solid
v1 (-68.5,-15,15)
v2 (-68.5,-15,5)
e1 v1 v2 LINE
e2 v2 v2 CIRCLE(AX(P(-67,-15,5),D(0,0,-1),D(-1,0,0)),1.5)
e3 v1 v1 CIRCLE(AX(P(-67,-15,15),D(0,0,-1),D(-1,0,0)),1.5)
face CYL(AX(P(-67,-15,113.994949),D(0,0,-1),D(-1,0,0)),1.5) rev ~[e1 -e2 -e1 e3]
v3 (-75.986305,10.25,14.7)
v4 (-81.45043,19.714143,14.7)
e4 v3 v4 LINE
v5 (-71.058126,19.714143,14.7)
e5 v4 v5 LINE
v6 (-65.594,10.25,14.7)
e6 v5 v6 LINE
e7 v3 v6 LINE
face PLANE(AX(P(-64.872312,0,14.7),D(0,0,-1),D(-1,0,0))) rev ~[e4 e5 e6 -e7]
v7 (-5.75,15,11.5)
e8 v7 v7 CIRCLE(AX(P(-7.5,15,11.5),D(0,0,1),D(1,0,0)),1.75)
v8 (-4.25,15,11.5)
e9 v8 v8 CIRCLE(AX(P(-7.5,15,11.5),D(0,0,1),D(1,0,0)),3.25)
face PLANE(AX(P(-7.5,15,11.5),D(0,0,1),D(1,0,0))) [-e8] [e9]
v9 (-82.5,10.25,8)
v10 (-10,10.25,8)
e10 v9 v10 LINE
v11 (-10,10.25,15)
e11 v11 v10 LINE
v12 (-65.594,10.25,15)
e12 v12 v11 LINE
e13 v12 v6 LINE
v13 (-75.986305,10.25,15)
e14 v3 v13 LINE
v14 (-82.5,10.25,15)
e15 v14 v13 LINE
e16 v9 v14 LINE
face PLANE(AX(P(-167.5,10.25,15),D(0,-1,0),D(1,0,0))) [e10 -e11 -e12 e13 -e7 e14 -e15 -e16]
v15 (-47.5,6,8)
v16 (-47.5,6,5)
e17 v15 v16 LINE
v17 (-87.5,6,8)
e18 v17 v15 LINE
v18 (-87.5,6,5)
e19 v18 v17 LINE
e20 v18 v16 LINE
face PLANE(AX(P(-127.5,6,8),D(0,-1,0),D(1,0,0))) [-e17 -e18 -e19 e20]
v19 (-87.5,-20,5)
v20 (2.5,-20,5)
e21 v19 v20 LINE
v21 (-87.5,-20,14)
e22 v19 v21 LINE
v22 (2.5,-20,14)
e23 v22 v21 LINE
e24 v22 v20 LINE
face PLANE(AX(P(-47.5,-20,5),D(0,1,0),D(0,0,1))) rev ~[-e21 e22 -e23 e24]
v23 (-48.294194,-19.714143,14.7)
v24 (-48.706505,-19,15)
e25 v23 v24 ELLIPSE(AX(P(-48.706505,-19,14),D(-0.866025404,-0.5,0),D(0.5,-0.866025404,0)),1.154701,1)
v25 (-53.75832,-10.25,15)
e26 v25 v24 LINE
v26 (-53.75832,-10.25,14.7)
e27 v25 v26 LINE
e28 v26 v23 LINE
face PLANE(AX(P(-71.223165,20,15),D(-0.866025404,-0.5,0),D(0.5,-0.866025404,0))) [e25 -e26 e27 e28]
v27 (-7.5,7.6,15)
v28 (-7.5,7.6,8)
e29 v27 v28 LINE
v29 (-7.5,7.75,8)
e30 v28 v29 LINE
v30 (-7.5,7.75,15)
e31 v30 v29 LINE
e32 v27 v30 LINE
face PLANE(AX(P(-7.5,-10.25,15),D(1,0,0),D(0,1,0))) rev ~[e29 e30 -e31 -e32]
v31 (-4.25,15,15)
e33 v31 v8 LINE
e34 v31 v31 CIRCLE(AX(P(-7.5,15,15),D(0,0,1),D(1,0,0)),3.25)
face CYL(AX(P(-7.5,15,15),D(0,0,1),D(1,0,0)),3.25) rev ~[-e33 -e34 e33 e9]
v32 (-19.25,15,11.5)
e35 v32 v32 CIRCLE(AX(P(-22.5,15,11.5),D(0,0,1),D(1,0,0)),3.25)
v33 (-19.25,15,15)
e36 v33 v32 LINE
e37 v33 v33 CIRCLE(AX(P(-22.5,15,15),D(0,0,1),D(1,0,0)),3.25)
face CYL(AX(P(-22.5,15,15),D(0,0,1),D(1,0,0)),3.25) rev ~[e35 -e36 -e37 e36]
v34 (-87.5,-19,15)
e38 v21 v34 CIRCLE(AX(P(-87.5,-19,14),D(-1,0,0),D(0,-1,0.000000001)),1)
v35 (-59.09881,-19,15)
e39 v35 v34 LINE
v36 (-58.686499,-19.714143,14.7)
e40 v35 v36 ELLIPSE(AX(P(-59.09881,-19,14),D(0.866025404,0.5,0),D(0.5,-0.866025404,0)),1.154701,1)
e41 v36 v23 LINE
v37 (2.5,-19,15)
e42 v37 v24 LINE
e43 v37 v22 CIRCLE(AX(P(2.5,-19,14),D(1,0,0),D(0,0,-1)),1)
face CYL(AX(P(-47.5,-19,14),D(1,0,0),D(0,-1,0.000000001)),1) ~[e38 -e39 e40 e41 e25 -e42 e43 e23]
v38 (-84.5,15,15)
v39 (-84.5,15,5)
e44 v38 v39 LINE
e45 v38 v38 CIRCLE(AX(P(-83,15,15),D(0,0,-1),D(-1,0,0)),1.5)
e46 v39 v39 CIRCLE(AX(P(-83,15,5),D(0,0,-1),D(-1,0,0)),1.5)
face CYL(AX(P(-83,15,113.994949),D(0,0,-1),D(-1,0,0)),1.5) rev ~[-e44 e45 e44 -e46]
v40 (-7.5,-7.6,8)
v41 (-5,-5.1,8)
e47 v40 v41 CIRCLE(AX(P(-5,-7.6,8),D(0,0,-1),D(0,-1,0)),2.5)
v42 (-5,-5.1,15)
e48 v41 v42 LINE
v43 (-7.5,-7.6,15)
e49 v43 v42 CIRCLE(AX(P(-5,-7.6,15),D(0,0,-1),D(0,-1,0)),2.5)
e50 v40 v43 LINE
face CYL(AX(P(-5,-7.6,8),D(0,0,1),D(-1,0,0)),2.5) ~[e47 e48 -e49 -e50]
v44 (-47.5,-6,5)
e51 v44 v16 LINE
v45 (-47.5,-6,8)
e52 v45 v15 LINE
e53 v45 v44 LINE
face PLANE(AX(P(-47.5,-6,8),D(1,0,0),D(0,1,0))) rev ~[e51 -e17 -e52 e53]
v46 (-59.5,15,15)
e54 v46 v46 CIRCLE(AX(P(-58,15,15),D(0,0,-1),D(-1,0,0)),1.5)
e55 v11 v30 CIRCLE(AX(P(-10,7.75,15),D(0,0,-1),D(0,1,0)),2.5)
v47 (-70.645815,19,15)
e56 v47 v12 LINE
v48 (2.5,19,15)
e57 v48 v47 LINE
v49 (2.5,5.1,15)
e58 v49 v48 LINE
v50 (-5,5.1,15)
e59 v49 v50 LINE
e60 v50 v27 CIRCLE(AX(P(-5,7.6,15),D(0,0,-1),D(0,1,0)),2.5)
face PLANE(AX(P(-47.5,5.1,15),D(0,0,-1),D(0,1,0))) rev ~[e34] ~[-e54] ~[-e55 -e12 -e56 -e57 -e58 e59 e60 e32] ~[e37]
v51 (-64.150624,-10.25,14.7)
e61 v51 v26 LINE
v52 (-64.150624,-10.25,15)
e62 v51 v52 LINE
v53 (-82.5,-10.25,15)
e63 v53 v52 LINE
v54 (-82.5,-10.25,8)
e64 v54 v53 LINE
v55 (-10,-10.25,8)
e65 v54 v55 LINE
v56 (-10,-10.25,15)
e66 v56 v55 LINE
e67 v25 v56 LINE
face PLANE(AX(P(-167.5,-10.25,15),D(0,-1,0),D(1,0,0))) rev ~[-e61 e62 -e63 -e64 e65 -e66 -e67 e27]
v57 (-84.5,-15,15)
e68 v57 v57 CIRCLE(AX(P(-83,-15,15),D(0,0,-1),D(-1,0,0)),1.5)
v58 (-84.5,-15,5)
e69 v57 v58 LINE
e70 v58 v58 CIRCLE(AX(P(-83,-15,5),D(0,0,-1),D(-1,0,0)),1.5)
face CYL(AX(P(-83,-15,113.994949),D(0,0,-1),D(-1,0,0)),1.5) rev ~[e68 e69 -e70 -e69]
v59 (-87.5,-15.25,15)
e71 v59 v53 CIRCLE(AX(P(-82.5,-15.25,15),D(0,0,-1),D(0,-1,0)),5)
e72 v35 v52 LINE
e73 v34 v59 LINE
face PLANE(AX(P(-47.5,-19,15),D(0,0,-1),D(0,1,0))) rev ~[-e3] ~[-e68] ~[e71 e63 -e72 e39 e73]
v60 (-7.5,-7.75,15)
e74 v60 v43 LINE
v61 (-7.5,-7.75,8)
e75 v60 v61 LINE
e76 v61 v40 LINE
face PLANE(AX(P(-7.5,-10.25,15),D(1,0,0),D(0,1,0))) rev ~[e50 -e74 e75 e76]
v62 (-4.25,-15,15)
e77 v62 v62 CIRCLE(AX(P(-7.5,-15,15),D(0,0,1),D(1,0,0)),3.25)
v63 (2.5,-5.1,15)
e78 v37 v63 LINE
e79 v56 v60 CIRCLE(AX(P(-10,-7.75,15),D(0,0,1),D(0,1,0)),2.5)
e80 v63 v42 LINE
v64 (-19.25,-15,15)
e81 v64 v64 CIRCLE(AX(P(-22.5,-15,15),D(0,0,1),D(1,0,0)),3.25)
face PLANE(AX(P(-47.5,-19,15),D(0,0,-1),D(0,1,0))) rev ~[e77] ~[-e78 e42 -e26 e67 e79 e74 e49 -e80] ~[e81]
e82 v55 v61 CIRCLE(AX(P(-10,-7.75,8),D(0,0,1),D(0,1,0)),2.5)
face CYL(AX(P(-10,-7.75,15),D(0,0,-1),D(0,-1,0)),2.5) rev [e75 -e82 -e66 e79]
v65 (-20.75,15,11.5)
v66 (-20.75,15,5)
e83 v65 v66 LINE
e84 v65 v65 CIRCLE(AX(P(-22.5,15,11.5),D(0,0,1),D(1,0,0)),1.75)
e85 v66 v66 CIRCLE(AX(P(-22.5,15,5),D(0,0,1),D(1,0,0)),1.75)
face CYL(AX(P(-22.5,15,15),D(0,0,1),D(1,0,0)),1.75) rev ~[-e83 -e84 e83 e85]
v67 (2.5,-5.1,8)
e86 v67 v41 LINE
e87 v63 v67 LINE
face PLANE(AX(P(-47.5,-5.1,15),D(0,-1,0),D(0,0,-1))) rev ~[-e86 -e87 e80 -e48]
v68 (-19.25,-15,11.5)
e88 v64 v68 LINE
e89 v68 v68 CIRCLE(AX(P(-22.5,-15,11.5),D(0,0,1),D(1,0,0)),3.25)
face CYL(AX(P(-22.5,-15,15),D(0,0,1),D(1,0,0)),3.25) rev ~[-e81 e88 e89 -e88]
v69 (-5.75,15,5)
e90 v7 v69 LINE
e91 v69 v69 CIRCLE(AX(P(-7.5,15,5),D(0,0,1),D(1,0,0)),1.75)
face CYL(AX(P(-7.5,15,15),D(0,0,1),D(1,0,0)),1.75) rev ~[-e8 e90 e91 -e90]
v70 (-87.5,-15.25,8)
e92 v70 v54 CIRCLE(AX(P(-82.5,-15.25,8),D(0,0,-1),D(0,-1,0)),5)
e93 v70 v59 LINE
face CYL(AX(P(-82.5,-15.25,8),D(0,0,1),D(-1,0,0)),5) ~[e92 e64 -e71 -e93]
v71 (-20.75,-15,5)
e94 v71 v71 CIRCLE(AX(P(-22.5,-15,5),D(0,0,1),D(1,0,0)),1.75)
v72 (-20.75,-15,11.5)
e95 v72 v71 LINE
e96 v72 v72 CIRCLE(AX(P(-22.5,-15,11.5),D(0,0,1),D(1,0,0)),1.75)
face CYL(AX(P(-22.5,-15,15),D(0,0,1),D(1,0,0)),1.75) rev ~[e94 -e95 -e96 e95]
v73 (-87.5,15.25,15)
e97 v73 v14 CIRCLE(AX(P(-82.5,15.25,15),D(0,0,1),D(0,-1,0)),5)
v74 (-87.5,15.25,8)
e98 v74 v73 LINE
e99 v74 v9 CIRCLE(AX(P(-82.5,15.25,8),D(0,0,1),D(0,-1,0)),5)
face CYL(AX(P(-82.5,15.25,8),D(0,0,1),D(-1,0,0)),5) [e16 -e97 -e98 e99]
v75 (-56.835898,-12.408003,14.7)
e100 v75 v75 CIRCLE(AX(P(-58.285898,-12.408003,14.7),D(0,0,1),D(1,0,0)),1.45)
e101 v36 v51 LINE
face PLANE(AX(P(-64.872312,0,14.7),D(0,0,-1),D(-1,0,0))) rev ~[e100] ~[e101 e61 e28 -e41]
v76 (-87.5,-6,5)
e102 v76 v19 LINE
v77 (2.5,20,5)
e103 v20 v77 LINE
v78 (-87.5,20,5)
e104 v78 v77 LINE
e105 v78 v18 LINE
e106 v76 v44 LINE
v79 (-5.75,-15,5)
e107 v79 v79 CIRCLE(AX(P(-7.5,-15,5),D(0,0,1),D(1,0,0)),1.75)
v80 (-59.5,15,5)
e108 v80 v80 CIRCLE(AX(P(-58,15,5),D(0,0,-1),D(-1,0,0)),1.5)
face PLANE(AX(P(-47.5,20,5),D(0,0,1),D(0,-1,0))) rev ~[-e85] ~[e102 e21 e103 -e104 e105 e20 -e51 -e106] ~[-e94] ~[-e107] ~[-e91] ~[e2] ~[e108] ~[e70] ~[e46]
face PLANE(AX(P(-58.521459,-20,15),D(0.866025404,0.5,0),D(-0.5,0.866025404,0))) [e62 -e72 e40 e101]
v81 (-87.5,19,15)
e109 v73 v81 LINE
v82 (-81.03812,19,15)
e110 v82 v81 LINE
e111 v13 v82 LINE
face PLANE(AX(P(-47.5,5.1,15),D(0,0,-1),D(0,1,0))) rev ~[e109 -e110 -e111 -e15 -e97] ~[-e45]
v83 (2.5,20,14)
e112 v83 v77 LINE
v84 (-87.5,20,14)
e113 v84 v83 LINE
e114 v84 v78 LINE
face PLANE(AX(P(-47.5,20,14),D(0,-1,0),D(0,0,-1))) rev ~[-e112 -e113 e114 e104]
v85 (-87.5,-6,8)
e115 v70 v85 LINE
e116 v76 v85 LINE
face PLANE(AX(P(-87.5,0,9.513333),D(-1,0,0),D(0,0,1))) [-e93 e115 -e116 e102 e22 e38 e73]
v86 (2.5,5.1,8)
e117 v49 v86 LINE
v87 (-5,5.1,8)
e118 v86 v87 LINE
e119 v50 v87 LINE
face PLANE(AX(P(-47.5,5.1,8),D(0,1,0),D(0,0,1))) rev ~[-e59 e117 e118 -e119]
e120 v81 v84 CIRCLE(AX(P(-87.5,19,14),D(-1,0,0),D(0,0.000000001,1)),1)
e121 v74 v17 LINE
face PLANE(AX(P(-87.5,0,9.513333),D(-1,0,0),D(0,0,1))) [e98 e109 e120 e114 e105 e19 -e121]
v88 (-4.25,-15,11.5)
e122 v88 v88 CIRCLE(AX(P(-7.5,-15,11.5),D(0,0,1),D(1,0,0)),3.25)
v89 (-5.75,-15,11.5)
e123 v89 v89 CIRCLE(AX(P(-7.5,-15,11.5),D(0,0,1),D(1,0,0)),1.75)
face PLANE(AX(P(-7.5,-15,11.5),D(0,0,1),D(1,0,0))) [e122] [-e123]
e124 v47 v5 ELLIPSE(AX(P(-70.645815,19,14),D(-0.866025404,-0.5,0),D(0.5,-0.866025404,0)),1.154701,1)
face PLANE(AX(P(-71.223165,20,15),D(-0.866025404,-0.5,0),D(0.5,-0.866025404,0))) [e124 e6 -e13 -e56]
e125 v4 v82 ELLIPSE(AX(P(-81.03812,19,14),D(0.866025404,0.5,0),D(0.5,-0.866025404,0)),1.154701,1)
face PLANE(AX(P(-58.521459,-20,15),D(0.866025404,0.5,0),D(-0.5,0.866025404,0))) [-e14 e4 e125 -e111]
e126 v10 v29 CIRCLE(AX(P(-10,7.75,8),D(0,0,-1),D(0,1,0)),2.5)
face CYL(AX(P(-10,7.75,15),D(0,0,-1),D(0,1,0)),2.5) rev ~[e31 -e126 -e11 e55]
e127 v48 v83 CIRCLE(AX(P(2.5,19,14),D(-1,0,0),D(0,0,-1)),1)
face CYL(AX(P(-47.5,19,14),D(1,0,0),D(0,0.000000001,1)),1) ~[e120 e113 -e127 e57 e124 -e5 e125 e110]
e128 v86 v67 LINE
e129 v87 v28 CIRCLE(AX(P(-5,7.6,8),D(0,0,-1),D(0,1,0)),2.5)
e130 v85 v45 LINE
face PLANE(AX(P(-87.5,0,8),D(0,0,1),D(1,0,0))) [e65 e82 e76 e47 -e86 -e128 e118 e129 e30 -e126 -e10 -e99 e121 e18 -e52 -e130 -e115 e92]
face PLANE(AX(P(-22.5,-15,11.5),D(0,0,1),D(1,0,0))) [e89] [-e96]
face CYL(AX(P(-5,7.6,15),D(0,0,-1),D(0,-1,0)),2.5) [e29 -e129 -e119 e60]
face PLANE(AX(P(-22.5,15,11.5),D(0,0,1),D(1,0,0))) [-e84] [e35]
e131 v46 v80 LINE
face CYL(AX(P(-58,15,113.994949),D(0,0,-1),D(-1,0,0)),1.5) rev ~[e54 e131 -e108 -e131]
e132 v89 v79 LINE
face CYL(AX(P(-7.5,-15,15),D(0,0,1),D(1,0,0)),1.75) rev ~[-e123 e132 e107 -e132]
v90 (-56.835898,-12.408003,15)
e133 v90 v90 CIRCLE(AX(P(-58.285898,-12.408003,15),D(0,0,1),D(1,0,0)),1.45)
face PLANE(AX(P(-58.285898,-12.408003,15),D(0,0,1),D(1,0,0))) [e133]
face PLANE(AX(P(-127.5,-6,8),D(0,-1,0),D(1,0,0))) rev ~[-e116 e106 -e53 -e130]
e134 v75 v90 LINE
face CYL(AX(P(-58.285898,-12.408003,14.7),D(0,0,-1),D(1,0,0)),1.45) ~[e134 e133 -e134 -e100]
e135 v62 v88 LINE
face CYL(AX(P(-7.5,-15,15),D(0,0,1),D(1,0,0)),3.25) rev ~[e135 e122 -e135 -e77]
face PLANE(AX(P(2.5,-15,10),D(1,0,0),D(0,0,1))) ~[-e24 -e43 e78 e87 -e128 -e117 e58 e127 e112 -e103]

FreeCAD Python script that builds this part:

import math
import FreeCAD as App
import Part
import Sketcher
from FreeCAD import Vector
Q = App.Units.Quantity


def edges_at(feature, points):
    """Names of the edges that pass closest to the given points."""
    edges = feature.Shape.Edges
    near = lambda p: min(range(len(edges)), key=lambda i: edges[i].distToShape(Part.Vertex(*p))[0])
    return sorted({f"Edge{near(p) + 1}" for p in points})

doc = App.newDocument("Part")
body = doc.addObject("PartDesign::Body", "Body")
body.AllowCompound = True

# Sketch on XY plane
sketch1 = body.newObject("Sketcher::SketchObject", "Sketch")
sketch1.AttachmentSupport = (doc.getObject("XY_Plane"), [""])
sketch1.MapMode = "FlatFace"
sketch1.addGeometry([
    Part.LineSegment(Vector(-128, 40, 0), Vector(-128, -40, 0)),
    Part.LineSegment(Vector(-128, -40, 0), Vector(128, -40, 0)),
    Part.LineSegment(Vector(128, -40, 0), Vector(128, 40, 0)),
    Part.LineSegment(Vector(128, 40, 0), Vector(-128, 40, 0)),
], False)
sketch1.addConstraint([
    Sketcher.Constraint("Coincident", 0, 2, 1, 1),
    Sketcher.Constraint("Coincident", 1, 2, 2, 1),
    Sketcher.Constraint("Coincident", 2, 2, 3, 1),
    Sketcher.Constraint("Coincident", 3, 2, 0, 1),
    Sketcher.Constraint("Vertical", 0),
    Sketcher.Constraint("Horizontal", 1),
    Sketcher.Constraint("Vertical", 2),
    Sketcher.Constraint("Horizontal", 3),
    Sketcher.Constraint("Symmetric", 0, 2, 2, 2, -1, 1),
    Sketcher.Constraint("DistanceX", 1, 1, 1, 2, 255.0),
    Sketcher.Constraint("DistanceY", 0, 2, 0, 1, 80.0),
])
pad1 = body.newObject("PartDesign::Pad", "Pad")
pad1.Profile = sketch1
pad1.Length = 5

# Sketch on XY plane
sketch2 = body.newObject("Sketcher::SketchObject", "Sketch001")
sketch2.AttachmentSupport = (doc.getObject("XY_Plane"), [""])
sketch2.MapMode = "FlatFace"
sketch2.AttachmentOffset = App.Placement(Vector(0, 0, 5), App.Rotation())
sketch2.addGeometry(Part.Circle(Vector(-108, 0, 0), Vector(0, 0, 1), 5), False)
sketch2.addConstraint([
    Sketcher.Constraint("PointOnObject", 0, 3, -1),
    Sketcher.Constraint("Diameter", 0, 10.0),
    Sketcher.Constraint("DistanceX", 0, 3, -1, 1, 107.5),
])
pocket1 = body.newObject("PartDesign::Pocket", "Pocket")
pocket1.Profile = sketch2
pocket1.Length = 5

# Sketch on XY plane
sketch3 = body.newObject("Sketcher::SketchObject", "Sketch002")
sketch3.AttachmentSupport = (doc.getObject("XY_Plane"), [""])
sketch3.MapMode = "FlatFace"
sketch3.AttachmentOffset = App.Placement(Vector(0, 0, 5), App.Rotation())
sketch3.addGeometry(Part.Circle(Vector(-45, 0, 0), Vector(0, 0, 1), 4), False)
sketch3.addConstraint([
    Sketcher.Constraint("PointOnObject", 0, 3, -1),
    Sketcher.Constraint("Diameter", 0, 8.0),
    Sketcher.Constraint("DistanceX", 0, 3, -1, 1, 45.0),
])
pocket2 = body.newObject("PartDesign::Pocket", "Pocket001")
pocket2.Profile = sketch3
pocket2.Length = 10

# Sketch on XY plane
sketch4 = body.newObject("Sketcher::SketchObject", "Sketch003")
sketch4.AttachmentSupport = (doc.getObject("XY_Plane"), [""])
sketch4.MapMode = "FlatFace"
sketch4.AttachmentOffset = App.Placement(Vector(0, 0, 5), App.Rotation())
sketch4.addGeometry([
    Part.LineSegment(Vector(-48, 10, 0), Vector(-48, -10, 0)),
    Part.LineSegment(Vector(-48, -10, 0), Vector(2, -10, 0)),
    Part.LineSegment(Vector(2, -10, 0), Vector(2, 10, 0)),
    Part.LineSegment(Vector(2, 10, 0), Vector(-48, 10, 0)),
], False)
sketch4.addConstraint([
    Sketcher.Constraint("Coincident", 0, 2, 1, 1),
    Sketcher.Constraint("Coincident", 1, 2, 2, 1),
    Sketcher.Constraint("Coincident", 2, 2, 3, 1),
    Sketcher.Constraint("Coincident", 3, 2, 0, 1),
    Sketcher.Constraint("Vertical", 0),
    Sketcher.Constraint("Horizontal", 1),
    Sketcher.Constraint("Vertical", 2),
    Sketcher.Constraint("Horizontal", 3),
    Sketcher.Constraint("DistanceX", 1, 1, 1, 2, 50.0),
    Sketcher.Constraint("DistanceY", 0, 2, 0, 1, 20.0),
    Sketcher.Constraint("DistanceY", 0, 2, -1, 1, 10.0),
    Sketcher.Constraint("DistanceX", 0, 2, -1, 1, 47.5),
])
pad2 = body.newObject("PartDesign::Pad", "Pad001")
pad2.Profile = sketch4
pad2.Length = 10

# Sketch on XY plane
sketch5 = body.newObject("Sketcher::SketchObject", "Sketch004")
sketch5.AttachmentSupport = (doc.getObject("XY_Plane"), [""])
sketch5.MapMode = "FlatFace"
sketch5.AttachmentOffset = App.Placement(Vector(0, 0, 5), App.Rotation())
sketch5.addGeometry(Part.Circle(Vector(70, 0, 0), Vector(0, 0, 1), 15), False)
sketch5.addConstraint([
    Sketcher.Constraint("PointOnObject", 0, 3, -1),
    Sketcher.Constraint("Diameter", 0, 30.0),
    Sketcher.Constraint("DistanceX", -1, 1, 0, 3, 70.0),
])
pocket3 = body.newObject("PartDesign::Pocket", "Pocket002")
pocket3.Profile = sketch5
pocket3.Length = 10

# Sketch on XY plane
sketch6 = body.newObject("Sketcher::SketchObject", "Sketch005")
sketch6.AttachmentSupport = (doc.getObject("XY_Plane"), [""])
sketch6.MapMode = "FlatFace"
sketch6.addGeometry(Part.Circle(Vector(-108, 0, 0), Vector(0, 0, 1), 7), False)
sketch6.addConstraint([
    Sketcher.Constraint("PointOnObject", 0, 3, -1),
    Sketcher.Constraint("Diameter", 0, 14.0),
    Sketcher.Constraint("DistanceX", 0, 3, -1, 1, 107.5),
])
pad3 = body.newObject("PartDesign::Pad", "Pad002")
pad3.Profile = sketch6
pad3.Length = 15

# Sketch on XY plane
sketch7 = body.newObject("Sketcher::SketchObject", "Sketch006")
sketch7.AttachmentSupport = (doc.getObject("XY_Plane"), [""])
sketch7.MapMode = "FlatFace"
sketch7.AttachmentOffset = App.Placement(Vector(0, 0, 15), App.Rotation())
sketch7.addGeometry(Part.Circle(Vector(-107.5, 0, 0), Vector(0, 0, 1), 2.5), False)
sketch7.addConstraint([
    Sketcher.Constraint("PointOnObject", 0, 3, -1),
    Sketcher.Constraint("Diameter", 0, 5.0),
    Sketcher.Constraint("DistanceX", 0, 3, -1, 1, 107.5),
])
doc.recompute()
hole = body.newObject("PartDesign::Hole", "Hole")
hole.Profile = sketch7
hole.ThreadType = "None"
hole.Diameter = 5
hole.DepthType = "ThroughAll"

# Sketch on XY plane
sketch8 = body.newObject("Sketcher::SketchObject", "Sketch007")
sketch8.AttachmentSupport = (doc.getObject("XY_Plane"), [""])
sketch8.MapMode = "FlatFace"
sketch8.AttachmentOffset = App.Placement(Vector(0, 0, 15), App.Rotation())
sketch8.addGeometry([
    Part.LineSegment(Vector(2, 5, 0), Vector(-48, 5, 0)),
    Part.ArcOfCircle(Part.Circle(Vector(-48, 0, 0), Vector(0, 0, 1), 5), math.radians(90), math.radians(270)),
    Part.LineSegment(Vector(-48, -5, 0), Vector(2, -5, 0)),
    Part.ArcOfCircle(Part.Circle(Vector(2, 0, 0), Vector(0, 0, 1), 5), math.radians(-90), math.radians(90)),
], False)
sketch8.addConstraint([
    Sketcher.Constraint("Tangent", 0, 2, 1, 1),
    Sketcher.Constraint("Tangent", 1, 2, 2, 1),
    Sketcher.Constraint("Tangent", 2, 2, 3, 1),
    Sketcher.Constraint("Tangent", 3, 2, 0, 1),
    Sketcher.Constraint("Horizontal", 0),
    Sketcher.Constraint("Horizontal", 2),
    Sketcher.Constraint("PointOnObject", 1, 3, -1),
    Sketcher.Constraint("Radius", 1, 5.1),
    Sketcher.Constraint("DistanceX", 0, 2, 0, 1, 50.0),
    Sketcher.Constraint("DistanceX", 1, 3, -1, 1, 47.5),
])
pocket4 = body.newObject("PartDesign::Pocket", "Pocket003")
pocket4.Profile = sketch8
pocket4.Length = 7

# Sketch on XY plane
sketch9 = body.newObject("Sketcher::SketchObject", "Sketch008")
sketch9.AttachmentSupport = (doc.getObject("XY_Plane"), [""])
sketch9.MapMode = "FlatFace"
sketch9.addGeometry([
    Part.Circle(Vector(39.8, -26.5, 0), Vector(0, 0, 1), 1.6),
    Part.Circle(Vector(39.8, -1.5, 0), Vector(0, 0, 1), 1.6),
    Part.Circle(Vector(109.9, -26.5, 0), Vector(0, 0, 1), 1.6),
    Part.Circle(Vector(100.2, -1.5, 0), Vector(0, 0, 1), 1.6),
], False)
sketch9.addConstraint([
    Sketcher.Constraint("Equal", 0, 1),
    Sketcher.Constraint("Equal", 1, 2),
    Sketcher.Constraint("Equal", 2, 3),
    Sketcher.Constraint("Horizontal", 0, 3, 2, 3),
    Sketcher.Constraint("Horizontal", 1, 3, 3, 3),
    Sketcher.Constraint("Vertical", 0, 3, 1, 3),
    Sketcher.Constraint("Diameter", 0, 3.3),
    Sketcher.Constraint("DistanceY", 0, 3, 1, 3, 25.0),
    Sketcher.Constraint("DistanceY", 0, 3, -1, 1, 26.5),
    Sketcher.Constraint("DistanceX", 1, 3, 3, 3, 60.5),
    Sketcher.Constraint("DistanceX", -1, 1, 0, 3, 39.75),
    Sketcher.Constraint("DistanceX", -1, 1, 2, 3, 109.940074),
])
doc.recompute()
hole2 = body.newObject("PartDesign::Hole", "Hole001")
hole2.Profile = sketch9
hole2.ThreadType = "None"
hole2.Diameter = 3.3
hole2.DepthType = "ThroughAll"
hole2.Reversed = True
doc.recompute()

fillet = body.newObject("PartDesign::Fillet", "Fillet")
fillet.Base = (hole2, edges_at(hole2, [(-127.5, 40, 2.5), (-127.5, -40, 2.5)]))
fillet.Radius = 10

# Sketch on XY plane
sketch10 = body.newObject("Sketcher::SketchObject", "Sketch009")
sketch10.AttachmentSupport = (doc.getObject("XY_Plane"), [""])
sketch10.MapMode = "FlatFace"
sketch10.AttachmentOffset = App.Placement(Vector(0, 0, 5), App.Rotation())
sketch10.addGeometry(Part.Circle(Vector(-45, 0, 0), Vector(0, 0, 1), 7), False)
sketch10.addConstraint([
    Sketcher.Constraint("PointOnObject", 0, 3, -1),
    Sketcher.Constraint("DistanceX", 0, 3, -1, 1, 45.0),
    Sketcher.Constraint("Diameter", 0, 13.93877),
])
pad4 = body.newObject("PartDesign::Pad", "Pad003")
pad4.Profile = sketch10
pad4.Length = 5
pad4.Reversed = True

# Sketch on XZ plane
sketch11 = body.newObject("Sketcher::SketchObject", "Sketch010")
sketch11.AttachmentSupport = (doc.getObject("XZ_Plane"), [""])
sketch11.MapMode = "FlatFace"
sketch11.AttachmentOffset = App.Placement(Vector(0, 0, 40), App.Rotation())
sketch11.addGeometry([
    Part.LineSegment(Vector(122, 0, 0), Vector(122, -75, 0)),
    Part.LineSegment(Vector(122, -75, 0), Vector(128, -75, 0)),
    Part.LineSegment(Vector(128, -75, 0), Vector(128, 0, 0)),
    Part.LineSegment(Vector(128, 0, 0), Vector(122, 0, 0)),
], False)
sketch11.addConstraint([
    Sketcher.Constraint("Coincident", 0, 2, 1, 1),
    Sketcher.Constraint("Coincident", 1, 2, 2, 1),
    Sketcher.Constraint("Coincident", 2, 2, 3, 1),
    Sketcher.Constraint("Coincident", 3, 2, 0, 1),
    Sketcher.Constraint("Vertical", 0),
    Sketcher.Constraint("Horizontal", 1),
    Sketcher.Constraint("Vertical", 2),
    Sketcher.Constraint("Horizontal", 3),
    Sketcher.Constraint("PointOnObject", 2, 2, -1),
    Sketcher.Constraint("DistanceX", 1, 1, 1, 2, 5.0),
    Sketcher.Constraint("DistanceY", 0, 2, 0, 1, 75.0),
    Sketcher.Constraint("DistanceX", -1, 1, 0, 2, 122.5),
])
pad5 = body.newObject("PartDesign::Pad", "Pad004")
pad5.Profile = sketch11
pad5.Length = 80
pad5.Reversed = True

# Sketch on XZ plane
sketch12 = body.newObject("Sketcher::SketchObject", "Sketch011")
sketch12.AttachmentSupport = (doc.getObject("XZ_Plane"), [""])
sketch12.MapMode = "FlatFace"
sketch12.AttachmentOffset = App.Placement(Vector(0, 0, 40), App.Rotation())
sketch12.addGeometry([
    Part.LineSegment(Vector(102, -70, 0), Vector(102, -75, 0)),
    Part.LineSegment(Vector(102, -75, 0), Vector(122, -75, 0)),
    Part.LineSegment(Vector(122, -75, 0), Vector(122, -70, 0)),
    Part.LineSegment(Vector(122, -70, 0), Vector(102, -70, 0)),
], False)
sketch12.addConstraint([
    Sketcher.Constraint("Coincident", 0, 2, 1, 1),
    Sketcher.Constraint("Coincident", 1, 2, 2, 1),
    Sketcher.Constraint("Coincident", 2, 2, 3, 1),
    Sketcher.Constraint("Coincident", 3, 2, 0, 1),
    Sketcher.Constraint("Vertical", 0),
    Sketcher.Constraint("Horizontal", 1),
    Sketcher.Constraint("Vertical", 2),
    Sketcher.Constraint("Horizontal", 3),
    Sketcher.Constraint("DistanceX", 1, 1, 1, 2, 20.0),
    Sketcher.Constraint("DistanceY", 0, 2, 0, 1, 5.0),
    Sketcher.Constraint("DistanceY", 0, 2, -1, 1, 75.0),
    Sketcher.Constraint("DistanceX", -1, 1, 0, 2, 102.5),
])
pad6 = body.newObject("PartDesign::Pad", "Pad005")
pad6.Profile = sketch12
pad6.Length = 80
pad6.Reversed = True

# Sketch on XZ plane
sketch13 = body.newObject("Sketcher::SketchObject", "Sketch012")
sketch13.AttachmentSupport = (doc.getObject("XZ_Plane"), [""])
sketch13.MapMode = "FlatFace"
sketch13.AttachmentOffset = App.Placement(Vector(0, 0, 40), App.Rotation())
sketch13.addGeometry([
    Part.LineSegment(Vector(-32, 5, 0), Vector(-32, 0, 0)),  # 0
    Part.LineSegment(Vector(-32, 0, 0), Vector(102, -75, 0)),  # 1
    Part.LineSegment(Vector(102, -75, 0), Vector(128, -75, 0)),  # 2
    Part.LineSegment(Vector(128, -75, 0), Vector(128, 5, 0)),  # 3
    Part.LineSegment(Vector(128, 5, 0), Vector(-32, 5, 0)),  # 4
], False)
sketch13.addConstraint([
    Sketcher.Constraint("Coincident", 0, 2, 1, 1),
    Sketcher.Constraint("Coincident", 1, 2, 2, 1),
    Sketcher.Constraint("Coincident", 2, 2, 3, 1),
    Sketcher.Constraint("Coincident", 3, 2, 4, 1),
    Sketcher.Constraint("Coincident", 4, 2, 0, 1),
    Sketcher.Constraint("Vertical", 0),
    Sketcher.Constraint("Horizontal", 2),
    Sketcher.Constraint("Vertical", 3),
    Sketcher.Constraint("Horizontal", 4),
    Sketcher.Constraint("PointOnObject", 0, 2, -1),
    Sketcher.Constraint("DistanceX", 2, 1, 2, 2, 25.0),
    Sketcher.Constraint("DistanceX", 4, 2, 4, 1, 160.0),
    Sketcher.Constraint("DistanceY", 0, 2, 0, 1, 5.0),
    Sketcher.Constraint("DistanceY", 3, 1, 3, 2, 80.0),
    Sketcher.Constraint("DistanceX", 0, 2, -1, 1, 32.5),
])
pad7 = body.newObject("PartDesign::Pad", "Pad006")
pad7.Profile = sketch13
pad7.Length = 5
pad7.Reversed = True
doc.recompute()

mirrored = body.newObject("PartDesign::Mirrored", "Mirrored")
mirrored.Originals = [pad7]
mirrored.MirrorPlane = (doc.getObject("XZ_Plane"), [""])
body.Tip = mirrored

# Sketch on XY plane
sketch14 = body.newObject("Sketcher::SketchObject", "Sketch013")
sketch14.AttachmentSupport = (doc.getObject("XY_Plane"), [""])
sketch14.MapMode = "FlatFace"
sketch14.AttachmentOffset = App.Placement(Vector(0, 0, -75), App.Rotation())
sketch14.addGeometry([
    Part.Circle(Vector(114.5, -15, 0), Vector(0, 0, 1), 3),
    Part.Circle(Vector(114.5, 15, 0), Vector(0, 0, 1), 3),
], False)
sketch14.addConstraint([
    Sketcher.Constraint("Equal", 0, 1),
    Sketcher.Constraint("Symmetric", 0, 3, 1, 3, -1),
    Sketcher.Constraint("Diameter", 0, 6.0),
    Sketcher.Constraint("DistanceY", 0, 3, -1, 1, 15.0),
    Sketcher.Constraint("DistanceX", -1, 1, 0, 3, 114.5),
])
pocket5 = body.newObject("PartDesign::Pocket", "Pocket004")
pocket5.Profile = sketch14
pocket5.Length = 5
pocket5.Reversed = True
doc.recompute()

fillet2 = body.newObject("PartDesign::Fillet", "Fillet001")
fillet2.Base = (pocket5, edges_at(pocket5, [
    (-75, -40, 0),
    (5, -40, 5),
    (-127.5, 0, 0),
    (-124.571, 37.071, 0),
    (-124.571, -37.071, 0),
    (-127.5, 0, 5),
    (-124.571, 37.071, 5),
    (-124.571, -37.071, 5),
    (127.5, 0, 5),
    (127.5, 0, -75),
    (115, -40, -75),
    (115, 40, -75),
    (35, -40, -37.5),
    (35, -35, -37.5),
    (5, 40, 5),
    (-75, 40, 0),
    (35, 40, -37.5),
    (35, 35, -37.5),
    (127.5, 40, -35),
    (127.5, -40, -35),
]))
fillet2.Radius = 1

# Sketch on XY plane
sketch15 = body.newObject("Sketcher::SketchObject", "Sketch014")
sketch15.AttachmentSupport = (doc.getObject("XY_Plane"), [""])
sketch15.MapMode = "FlatFace"
sketch15.AttachmentOffset = App.Placement(Vector(0, 0, 5), App.Rotation())
sketch15.addGeometry([
    Part.LineSegment(Vector(-155, 67, 0), Vector(-155, -67, 0)),
    Part.LineSegment(Vector(-155, -67, 0), Vector(155, -67, 0)),
    Part.LineSegment(Vector(155, -67, 0), Vector(155, 67, 0)),
    Part.LineSegment(Vector(155, 67, 0), Vector(-155, 67, 0)),
], False)
sketch15.addConstraint([
    Sketcher.Constraint("Coincident", 0, 2, 1, 1),
    Sketcher.Constraint("Coincident", 1, 2, 2, 1),
    Sketcher.Constraint("Coincident", 2, 2, 3, 1),
    Sketcher.Constraint("Coincident", 3, 2, 0, 1),
    Sketcher.Constraint("Vertical", 0),
    Sketcher.Constraint("Horizontal", 1),
    Sketcher.Constraint("Vertical", 2),
    Sketcher.Constraint("Horizontal", 3),
    Sketcher.Constraint("Symmetric", 0, 2, 2, 2, -1, 1),
    Sketcher.Constraint("DistanceY", 0, 2, 0, 1, 134.290372),
    Sketcher.Constraint("DistanceX", 1, 1, 1, 2, 309.613912),
])
pocket6 = body.newObject("PartDesign::Pocket", "Pocket005")
pocket6.Profile = sketch15
pocket6.Type = "ThroughAll"

# Sketch on XY plane
sketch16 = body.newObject("Sketcher::SketchObject", "Sketch015")
sketch16.AttachmentSupport = (doc.getObject("XY_Plane"), [""])
sketch16.MapMode = "FlatFace"
sketch16.AttachmentOffset = App.Placement(Vector(0, 0, 15), App.Rotation())
sketch16.addGeometry(Part.Circle(Vector(-108, 0, 0), Vector(0, 0, 1), 17), False)
sketch16.addConstraint([
    Sketcher.Constraint("PointOnObject", 0, 3, -1),
    Sketcher.Constraint("Diameter", 0, 34.0),
    Sketcher.Constraint("DistanceX", 0, 3, -1, 1, 107.5),
])
pocket7 = body.newObject("PartDesign::Pocket", "Pocket006")
pocket7.Profile = sketch16
pocket7.Type = "ThroughAll"

# Sketch on YZ plane
sketch17 = body.newObject("Sketcher::SketchObject", "Sketch016")
sketch17.AttachmentSupport = (doc.getObject("YZ_Plane"), [""])
sketch17.MapMode = "FlatFace"
sketch17.AttachmentOffset = App.Placement(Vector(0, 0, 2.5), App.Rotation())
sketch17.addGeometry([
    Part.LineSegment(Vector(20, 15, 0), Vector(10, 15, 0)),
    Part.LineSegment(Vector(10, 15, 0), Vector(10, 5, 0)),
    Part.LineSegment(Vector(10, 5, 0), Vector(20, 5, 0)),
    Part.LineSegment(Vector(20, 5, 0), Vector(20, 15, 0)),
], False)
sketch17.addConstraint([
    Sketcher.Constraint("Coincident", 0, 2, 1, 1),
    Sketcher.Constraint("Coincident", 1, 2, 2, 1),
    Sketcher.Constraint("Coincident", 2, 2, 3, 1),
    Sketcher.Constraint("Coincident", 3, 2, 0, 1),
    Sketcher.Constraint("Horizontal", 0),
    Sketcher.Constraint("Vertical", 1),
    Sketcher.Constraint("Horizontal", 2),
    Sketcher.Constraint("Vertical", 3),
    Sketcher.Constraint("Equal", 2, 1),
    Sketcher.Constraint("DistanceX", 0, 2, 0, 1, 10.0),
    Sketcher.Constraint("DistanceX", -1, 1, 0, 2, 10.0),
    Sketcher.Constraint("DistanceY", -1, 1, 0, 2, 15.0),
])
pad8 = body.newObject("PartDesign::Pad", "Pad007")
pad8.Profile = sketch17
pad8.Length = 50
pad8.Reversed = True
doc.recompute()

mirrored2 = body.newObject("PartDesign::Mirrored", "Mirrored001")
mirrored2.Originals = [pad8]
mirrored2.MirrorPlane = (doc.getObject("XZ_Plane"), [""])
body.Tip = mirrored2

# Sketch on XY plane
sketch18 = body.newObject("Sketcher::SketchObject", "Sketch017")
sketch18.AttachmentSupport = (doc.getObject("XY_Plane"), [""])
sketch18.MapMode = "FlatFace"
sketch18.AttachmentOffset = App.Placement(Vector(0, 0, 15), App.Rotation())
sketch18.addGeometry([
    Part.Circle(Vector(-22.5, 15, 0), Vector(0, 0, 1), 1.8),
    Part.Circle(Vector(-7.5, 15, 0), Vector(0, 0, 1), 1.8),
    Part.Circle(Vector(-7.5, -15, 0), Vector(0, 0, 1), 1.8),
    Part.Circle(Vector(-22.5, -15, 0), Vector(0, 0, 1), 1.8),
], False)
sketch18.addConstraint([
    Sketcher.Constraint("Equal", 0, 1),
    Sketcher.Constraint("Equal", 1, 2),
    Sketcher.Constraint("Equal", 2, 3),
    Sketcher.Constraint("Symmetric", 1, 3, 2, 3, -1),
    Sketcher.Constraint("Symmetric", 0, 3, 3, 3, -1),
    Sketcher.Constraint("Horizontal", 0, 3, 1, 3),
    Sketcher.Constraint("Diameter", 0, 3.5),
    Sketcher.Constraint("DistanceY", -1, 1, 0, 3, 15.0),
    Sketcher.Constraint("DistanceX", 0, 3, 1, 3, 15.0),
    Sketcher.Constraint("DistanceX", 0, 3, -1, 1, 22.5),
])
pocket8 = body.newObject("PartDesign::Pocket", "Pocket007")
pocket8.Profile = sketch18
pocket8.Type = "ThroughAll"

# Sketch on XY plane
sketch19 = body.newObject("Sketcher::SketchObject", "Sketch018")
sketch19.AttachmentSupport = (doc.getObject("XY_Plane"), [""])
sketch19.MapMode = "FlatFace"
sketch19.AttachmentOffset = App.Placement(Vector(0, 0, 15), App.Rotation())
sketch19.addGeometry([
    Part.Circle(Vector(-22.5, 15, 0), Vector(0, 0, 1), 3.2),
    Part.Circle(Vector(-7.5, 15, 0), Vector(0, 0, 1), 3.2),
    Part.Circle(Vector(-7.5, -15, 0), Vector(0, 0, 1), 3.2),
    Part.Circle(Vector(-22.5, -15, 0), Vector(0, 0, 1), 3.2),
], False)
sketch19.addConstraint([
    Sketcher.Constraint("Equal", 0, 1),
    Sketcher.Constraint("Equal", 1, 2),
    Sketcher.Constraint("Equal", 2, 3),
    Sketcher.Constraint("Symmetric", 1, 3, 2, 3, -1),
    Sketcher.Constraint("Symmetric", 0, 3, 3, 3, -1),
    Sketcher.Constraint("Horizontal", 0, 3, 1, 3),
    Sketcher.Constraint("Diameter", 0, 6.5),
    Sketcher.Constraint("DistanceY", -1, 1, 0, 3, 15.0),
    Sketcher.Constraint("DistanceX", 0, 3, 1, 3, 15.0),
    Sketcher.Constraint("DistanceX", 0, 3, -1, 1, 22.5),
])
pocket9 = body.newObject("PartDesign::Pocket", "Pocket008")
pocket9.Profile = sketch19
pocket9.Length = 3.5
doc.recompute()

fillet3 = body.newObject("PartDesign::Fillet", "Fillet002")
fillet3.Base = (pocket9, edges_at(pocket9, [(-22.5, 20, 15), (-22.5, -20, 15)]))
fillet3.Radius = 1

# Sketch on YZ plane
sketch20 = body.newObject("Sketcher::SketchObject", "Sketch019")
sketch20.AttachmentSupport = (doc.getObject("YZ_Plane"), [""])
sketch20.MapMode = "FlatFace"
sketch20.AttachmentOffset = App.Placement(Vector(0, 0, -47.5), App.Rotation())
sketch20.addGeometry([
    Part.LineSegment(Vector(-20, 5, 0), Vector(-20, 14, 0)),  # 0
    Part.ArcOfCircle(Part.Circle(Vector(-19, 14, 0), Vector(0, 0, 1), 1), math.radians(90), math.radians(180)),  # 1
    Part.LineSegment(Vector(-19, 15, 0), Vector(-5.1, 15, 0)),  # 2
    Part.LineSegment(Vector(-5.1, 15, 0), Vector(-5.1, 8, 0)),  # 3
    Part.LineSegment(Vector(-5.1, 8, 0), Vector(5.1, 8, 0)),  # 4
    Part.LineSegment(Vector(5.1, 8, 0), Vector(5.1, 15, 0)),  # 5
    Part.LineSegment(Vector(5.1, 15, 0), Vector(19, 15, 0)),  # 6
    Part.ArcOfCircle(Part.Circle(Vector(19, 14, 0), Vector(0, 0, 1), 1), math.radians(0), math.radians(90)),  # 7
    Part.LineSegment(Vector(20, 14, 0), Vector(20, 5, 0)),  # 8
    Part.LineSegment(Vector(20, 5, 0), Vector(-20, 5, 0)),  # 9
], False)
sketch20.addConstraint([
    Sketcher.Constraint("Tangent", 0, 2, 1, 2),
    Sketcher.Constraint("Tangent", 1, 1, 2, 1),
    Sketcher.Constraint("Coincident", 2, 2, 3, 1),
    Sketcher.Constraint("Coincident", 3, 2, 4, 1),
    Sketcher.Constraint("Coincident", 4, 2, 5, 1),
    Sketcher.Constraint("Coincident", 5, 2, 6, 1),
    Sketcher.Constraint("Tangent", 6, 2, 7, 2),
    Sketcher.Constraint("Tangent", 7, 1, 8, 1),
    Sketcher.Constraint("Coincident", 8, 2, 9, 1),
    Sketcher.Constraint("Coincident", 9, 2, 0, 1),
    Sketcher.Constraint("Vertical", 0),
    Sketcher.Constraint("Horizontal", 2),
    Sketcher.Constraint("Vertical", 3),
    Sketcher.Constraint("Horizontal", 4),
    Sketcher.Constraint("Vertical", 5),
    Sketcher.Constraint("Horizontal", 6),
    Sketcher.Constraint("Vertical", 8),
    Sketcher.Constraint("Horizontal", 9),
    Sketcher.Constraint("Equal", 1, 7),
    Sketcher.Constraint("Symmetric", 1, 3, 7, 3, -2),
    Sketcher.Constraint("Equal", 2, 6),
    Sketcher.Constraint("Radius", 1, 1.0),
    Sketcher.Constraint("DistanceX", 9, 2, 9, 1, 40.0),
    Sketcher.Constraint("DistanceY", 0, 1, 0, 2, 9.0),
    Sketcher.Constraint("DistanceY", 3, 2, 3, 1, 7.0),
    Sketcher.Constraint("DistanceX", 2, 1, 2, 2, 13.9),
    Sketcher.Constraint("DistanceY", -1, 1, 1, 3, 14.0),
])
pad9 = body.newObject("PartDesign::Pad", "Pad008")
pad9.Profile = sketch20
pad9.Length = 40
pad9.Reversed = True

# Sketch on XY plane
sketch21 = body.newObject("Sketcher::SketchObject", "Sketch020")
sketch21.AttachmentSupport = (doc.getObject("XY_Plane"), [""])
sketch21.MapMode = "FlatFace"
sketch21.AttachmentOffset = App.Placement(Vector(0, 0, 15), App.Rotation())
sketch21.addGeometry([
    Part.LineSegment(Vector(-168, 10, 0), Vector(-168, -10, 0)),
    Part.LineSegment(Vector(-168, -10, 0), Vector(-8, -10, 0)),
    Part.LineSegment(Vector(-8, -10, 0), Vector(-8, 10, 0)),
    Part.LineSegment(Vector(-8, 10, 0), Vector(-168, 10, 0)),
], False)
sketch21.addConstraint([
    Sketcher.Constraint("Coincident", 0, 2, 1, 1),
    Sketcher.Constraint("Coincident", 1, 2, 2, 1),
    Sketcher.Constraint("Coincident", 2, 2, 3, 1),
    Sketcher.Constraint("Coincident", 3, 2, 0, 1),
    Sketcher.Constraint("Vertical", 0),
    Sketcher.Constraint("Horizontal", 1),
    Sketcher.Constraint("Vertical", 2),
    Sketcher.Constraint("Horizontal", 3),
    Sketcher.Constraint("DistanceX", 1, 1, 1, 2, 160.0),
    Sketcher.Constraint("DistanceY", 0, 2, 0, 1, 20.5),
    Sketcher.Constraint("DistanceX", 0, 2, -1, 1, 167.5),
    Sketcher.Constraint("DistanceY", 0, 2, -1, 1, 10.25),
])
pocket10 = body.newObject("PartDesign::Pocket", "Pocket009")
pocket10.Profile = sketch21
pocket10.Length = 7

# Sketch on XY plane
sketch22 = body.newObject("Sketcher::SketchObject", "Sketch021")
sketch22.AttachmentSupport = (doc.getObject("XY_Plane"), [""])
sketch22.MapMode = "FlatFace"
sketch22.AttachmentOffset = App.Placement(Vector(0, 0, 8), App.Rotation())
sketch22.addGeometry([
    Part.LineSegment(Vector(-128, 6, 0), Vector(-128, -6, 0)),
    Part.LineSegment(Vector(-128, -6, 0), Vector(-48, -6, 0)),
    Part.LineSegment(Vector(-48, -6, 0), Vector(-48, 6, 0)),
    Part.LineSegment(Vector(-48, 6, 0), Vector(-128, 6, 0)),
], False)
sketch22.addConstraint([
    Sketcher.Constraint("Coincident", 0, 2, 1, 1),
    Sketcher.Constraint("Coincident", 1, 2, 2, 1),
    Sketcher.Constraint("Coincident", 2, 2, 3, 1),
    Sketcher.Constraint("Coincident", 3, 2, 0, 1),
    Sketcher.Constraint("Vertical", 0),
    Sketcher.Constraint("Horizontal", 1),
    Sketcher.Constraint("Vertical", 2),
    Sketcher.Constraint("Horizontal", 3),
    Sketcher.Constraint("DistanceX", 1, 1, 1, 2, 80.0),
    Sketcher.Constraint("DistanceY", 0, 2, 0, 1, 12.0),
    Sketcher.Constraint("DistanceY", 0, 2, -1, 1, 6.0),
    Sketcher.Constraint("DistanceX", 0, 2, -1, 1, 127.5),
])
pocket11 = body.newObject("PartDesign::Pocket", "Pocket010")
pocket11.Profile = sketch22
pocket11.Type = "ThroughAll"
doc.recompute()

fillet4 = body.newObject("PartDesign::Fillet", "Fillet003")
fillet4.Base = (pocket11, edges_at(pocket11, [(-87.5, 10.25, 11.5), (-87.5, -10.25, 11.5)]))
fillet4.Radius = 5

# Sketch on XY plane
sketch23 = body.newObject("Sketcher::SketchObject", "Sketch022")
sketch23.AttachmentSupport = (doc.getObject("XY_Plane"), [""])
sketch23.MapMode = "FlatFace"
sketch23.AttachmentOffset = App.Placement(Vector(0, 0, 15), App.Rotation())
sketch23.addGeometry([
    Part.LineSegment(Vector(-82, 20, 0), Vector(-59, -20, 0)),
    Part.LineSegment(Vector(-59, -20, 0), Vector(-48, -20, 0)),
    Part.LineSegment(Vector(-48, -20, 0), Vector(-71, 20, 0)),
    Part.LineSegment(Vector(-71, 20, 0), Vector(-82, 20, 0)),
], False)
sketch23.addConstraint([
    Sketcher.Constraint("Coincident", 0, 2, 1, 1),
    Sketcher.Constraint("Coincident", 1, 2, 2, 1),
    Sketcher.Constraint("Coincident", 2, 2, 3, 1),
    Sketcher.Constraint("Coincident", 3, 2, 0, 1),
    Sketcher.Constraint("Horizontal", 1),
    Sketcher.Constraint("Horizontal", 3),
    Sketcher.Constraint("Parallel", 0, 2),
    Sketcher.Constraint("Angle", 0, Q("-60 deg")),
    Sketcher.Constraint("DistanceY", 0, 2, -1, 1, 20.0),
    Sketcher.Constraint("DistanceY", -1, 1, 2, 2, 20.0),
    Sketcher.Constraint("DistanceX", 1, 1, 1, 2, 10.392305),
    Sketcher.Constraint("DistanceX", 0, 2, -1, 1, 58.521459),
])
pocket12 = body.newObject("PartDesign::Pocket", "Pocket011")
pocket12.Profile = sketch23
pocket12.Length = 0.3

# Sketch on XY plane
sketch24 = body.newObject("Sketcher::SketchObject", "Sketch023")
sketch24.AttachmentSupport = (doc.getObject("XY_Plane"), [""])
sketch24.MapMode = "FlatFace"
sketch24.AttachmentOffset = App.Placement(Vector(0, 0, 14.7), App.Rotation())
sketch24.addGeometry(Part.Circle(Vector(-58.3, -12.4, 0), Vector(0, 0, 1), 1.4), False)
sketch24.addConstraint([
    Sketcher.Constraint("Diameter", 0, 2.9),
    Sketcher.Constraint("DistanceX", 0, 3, -1, 1, 58.285898),
    Sketcher.Constraint("DistanceY", 0, 3, -1, 1, 12.408003),
])
pad10 = body.newObject("PartDesign::Pad", "Pad009")
pad10.Profile = sketch24
pad10.Length = 0.3

# Sketch on XY plane
sketch25 = body.newObject("Sketcher::SketchObject", "Sketch024")
sketch25.AttachmentSupport = (doc.getObject("XY_Plane"), [""])
sketch25.MapMode = "FlatFace"
sketch25.AttachmentOffset = App.Placement(Vector(0, 0, 15), App.Rotation())
sketch25.addGeometry([
    Part.Circle(Vector(-83, 15, 0), Vector(0, 0, 1), 1.5),
    Part.Circle(Vector(-58, 15, 0), Vector(0, 0, 1), 1.5),
    Part.Circle(Vector(-67, -15, 0), Vector(0, 0, 1), 1.5),
    Part.Circle(Vector(-83, -15, 0), Vector(0, 0, 1), 1.5),
], False)
sketch25.addConstraint([
    Sketcher.Constraint("Equal", 0, 1),
    Sketcher.Constraint("Equal", 1, 2),
    Sketcher.Constraint("Equal", 2, 3),
    Sketcher.Constraint("Symmetric", 0, 3, 3, 3, -1),
    Sketcher.Constraint("Horizontal", 0, 3, 1, 3),
    Sketcher.Constraint("Horizontal", 2, 3, 3, 3),
    Sketcher.Constraint("Diameter", 0, 3.0),
    Sketcher.Constraint("DistanceX", 0, 3, -1, 1, 83.0),
    Sketcher.Constraint("DistanceY", -1, 1, 0, 3, 15.0),
    Sketcher.Constraint("DistanceX", 1, 3, -1, 1, 58.0),
    Sketcher.Constraint("DistanceX", 2, 3, -1, 1, 67.0),
])
doc.recompute()
hole3 = body.newObject("PartDesign::Hole", "Hole002")
hole3.Profile = sketch25
hole3.ThreadType = "None"
hole3.Diameter = 3
hole3.DepthType = "ThroughAll"
doc.recompute()

fillet5 = body.newObject("PartDesign::Fillet", "Fillet004")
fillet5.Base = (hole3, edges_at(hole3, [
    (-7.5, -5.1, 11.5),
    (-7.5, 5.1, 11.5),
    (-7.5, 10.25, 11.5),
    (-7.5, -10.25, 11.5),
]))
fillet5.Radius = 2.5

doc.recompute()
